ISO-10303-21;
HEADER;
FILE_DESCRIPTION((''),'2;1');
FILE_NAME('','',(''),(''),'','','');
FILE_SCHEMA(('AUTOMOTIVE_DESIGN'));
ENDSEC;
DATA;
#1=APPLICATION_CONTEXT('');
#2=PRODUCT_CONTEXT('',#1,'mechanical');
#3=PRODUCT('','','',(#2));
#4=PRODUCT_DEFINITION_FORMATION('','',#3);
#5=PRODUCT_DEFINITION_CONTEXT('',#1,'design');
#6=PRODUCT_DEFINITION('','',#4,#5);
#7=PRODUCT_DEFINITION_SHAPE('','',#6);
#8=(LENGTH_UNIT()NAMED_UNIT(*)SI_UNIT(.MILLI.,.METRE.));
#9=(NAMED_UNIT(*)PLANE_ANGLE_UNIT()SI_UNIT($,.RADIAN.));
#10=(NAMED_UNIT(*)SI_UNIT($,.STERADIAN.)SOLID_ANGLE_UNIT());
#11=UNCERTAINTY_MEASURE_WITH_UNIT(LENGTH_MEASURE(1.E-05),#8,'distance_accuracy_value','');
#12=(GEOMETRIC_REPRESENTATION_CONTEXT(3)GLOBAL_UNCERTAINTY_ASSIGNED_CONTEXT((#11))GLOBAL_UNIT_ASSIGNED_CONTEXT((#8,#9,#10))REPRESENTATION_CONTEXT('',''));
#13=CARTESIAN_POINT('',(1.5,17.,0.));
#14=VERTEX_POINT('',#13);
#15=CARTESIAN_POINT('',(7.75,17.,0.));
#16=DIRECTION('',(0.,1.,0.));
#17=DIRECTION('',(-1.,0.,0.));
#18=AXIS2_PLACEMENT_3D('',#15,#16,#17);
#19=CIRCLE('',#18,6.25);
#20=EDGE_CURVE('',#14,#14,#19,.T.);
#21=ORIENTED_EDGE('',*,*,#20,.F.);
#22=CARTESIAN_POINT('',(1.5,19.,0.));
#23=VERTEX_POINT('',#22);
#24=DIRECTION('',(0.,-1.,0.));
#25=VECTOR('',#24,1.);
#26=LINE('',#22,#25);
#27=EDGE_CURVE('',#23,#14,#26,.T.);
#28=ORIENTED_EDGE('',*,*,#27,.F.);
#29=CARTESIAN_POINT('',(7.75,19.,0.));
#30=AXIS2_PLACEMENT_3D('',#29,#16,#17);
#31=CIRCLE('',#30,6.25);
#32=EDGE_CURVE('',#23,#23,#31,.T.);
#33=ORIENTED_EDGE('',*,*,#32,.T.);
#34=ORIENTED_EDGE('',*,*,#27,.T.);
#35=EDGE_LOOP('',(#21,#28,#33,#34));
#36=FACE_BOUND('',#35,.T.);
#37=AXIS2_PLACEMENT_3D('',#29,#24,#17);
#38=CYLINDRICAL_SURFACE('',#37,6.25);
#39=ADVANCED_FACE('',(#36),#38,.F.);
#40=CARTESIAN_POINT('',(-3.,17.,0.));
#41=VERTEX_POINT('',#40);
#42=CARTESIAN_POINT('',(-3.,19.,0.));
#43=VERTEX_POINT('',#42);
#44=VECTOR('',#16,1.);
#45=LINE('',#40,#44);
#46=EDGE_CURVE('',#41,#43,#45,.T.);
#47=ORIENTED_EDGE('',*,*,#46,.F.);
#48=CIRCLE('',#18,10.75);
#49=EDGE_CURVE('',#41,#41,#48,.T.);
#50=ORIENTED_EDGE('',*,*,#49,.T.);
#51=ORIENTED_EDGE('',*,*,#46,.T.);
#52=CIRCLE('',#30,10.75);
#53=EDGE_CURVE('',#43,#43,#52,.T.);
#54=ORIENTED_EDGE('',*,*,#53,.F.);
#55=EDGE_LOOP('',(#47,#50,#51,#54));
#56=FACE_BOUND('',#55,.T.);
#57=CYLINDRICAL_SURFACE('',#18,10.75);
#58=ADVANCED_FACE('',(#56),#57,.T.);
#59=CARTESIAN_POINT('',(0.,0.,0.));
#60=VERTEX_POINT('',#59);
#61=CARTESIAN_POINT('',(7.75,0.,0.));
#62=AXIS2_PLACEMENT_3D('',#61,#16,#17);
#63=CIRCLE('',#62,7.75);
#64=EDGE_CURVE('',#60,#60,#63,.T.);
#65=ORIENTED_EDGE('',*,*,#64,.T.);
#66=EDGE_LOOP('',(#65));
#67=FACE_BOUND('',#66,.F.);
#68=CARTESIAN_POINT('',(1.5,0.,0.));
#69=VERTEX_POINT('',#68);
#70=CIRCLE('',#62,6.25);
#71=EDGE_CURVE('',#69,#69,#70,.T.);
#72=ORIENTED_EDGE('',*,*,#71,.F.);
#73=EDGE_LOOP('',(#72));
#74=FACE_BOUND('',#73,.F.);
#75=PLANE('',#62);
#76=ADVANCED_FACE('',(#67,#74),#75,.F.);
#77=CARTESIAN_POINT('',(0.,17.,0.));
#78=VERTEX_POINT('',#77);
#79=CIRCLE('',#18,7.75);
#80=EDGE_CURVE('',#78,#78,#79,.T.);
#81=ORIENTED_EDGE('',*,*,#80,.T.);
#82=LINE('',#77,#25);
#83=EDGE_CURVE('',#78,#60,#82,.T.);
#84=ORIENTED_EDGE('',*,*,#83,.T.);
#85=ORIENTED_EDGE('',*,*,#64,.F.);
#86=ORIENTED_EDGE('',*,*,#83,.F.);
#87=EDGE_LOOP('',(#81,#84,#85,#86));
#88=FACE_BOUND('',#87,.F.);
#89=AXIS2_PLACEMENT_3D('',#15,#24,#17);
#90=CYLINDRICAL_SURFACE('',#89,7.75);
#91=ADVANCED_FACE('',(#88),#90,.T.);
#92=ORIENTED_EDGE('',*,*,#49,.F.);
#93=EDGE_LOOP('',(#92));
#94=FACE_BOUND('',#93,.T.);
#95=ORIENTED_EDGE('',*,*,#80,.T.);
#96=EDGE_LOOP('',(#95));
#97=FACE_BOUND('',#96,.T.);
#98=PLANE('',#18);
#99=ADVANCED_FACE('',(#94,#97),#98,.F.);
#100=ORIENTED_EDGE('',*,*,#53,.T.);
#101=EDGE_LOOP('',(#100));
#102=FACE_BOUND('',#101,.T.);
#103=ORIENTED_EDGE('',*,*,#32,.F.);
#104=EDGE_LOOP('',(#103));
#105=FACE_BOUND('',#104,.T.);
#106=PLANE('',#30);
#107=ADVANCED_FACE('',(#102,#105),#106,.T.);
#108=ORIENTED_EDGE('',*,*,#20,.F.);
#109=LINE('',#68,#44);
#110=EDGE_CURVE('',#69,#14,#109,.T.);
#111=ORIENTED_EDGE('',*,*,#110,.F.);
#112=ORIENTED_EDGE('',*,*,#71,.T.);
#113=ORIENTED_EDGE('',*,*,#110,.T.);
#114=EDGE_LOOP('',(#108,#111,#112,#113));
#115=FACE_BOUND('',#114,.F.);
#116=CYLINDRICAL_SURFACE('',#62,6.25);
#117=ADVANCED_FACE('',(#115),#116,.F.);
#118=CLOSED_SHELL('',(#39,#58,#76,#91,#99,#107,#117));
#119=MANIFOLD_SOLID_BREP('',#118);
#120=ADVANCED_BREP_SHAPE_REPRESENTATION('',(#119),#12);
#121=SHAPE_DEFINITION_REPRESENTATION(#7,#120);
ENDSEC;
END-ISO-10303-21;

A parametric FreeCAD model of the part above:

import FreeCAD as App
import Part
import Sketcher
from FreeCAD import Vector


def add_polygon(sketch, points):
    """Adds a closed chain of lines whose ends are joined by coincident constraints."""
    first, n = sketch.GeometryCount, len(points)
    for a, b in zip(points, points[1:] + points[:1]):
        sketch.addGeometry(Part.LineSegment(App.Vector(*a, 0), App.Vector(*b, 0)), False)
    for i in range(n):
        sketch.addConstraint(Sketcher.Constraint("Coincident", first + i, 2, first + (i + 1) % n, 1))

doc = App.newDocument("Part")
body = doc.addObject("PartDesign::Body", "Body")

sketch1 = body.newObject("Sketcher::SketchObject", "Sketch")
sketch1.AttachmentSupport = (doc.getObject("XY_Plane"), [""])
sketch1.MapMode = "FlatFace"
add_polygon(sketch1, [(0, 17), (0, 0), (1.5, 0), (1.5, 19), (-3, 19), (-3, 17)])
sketch1.addGeometry(Part.LineSegment(Vector(7.75, 0, 0), Vector(7.75, 19, 0)), True)
sketch1.addConstraint([
    Sketcher.Constraint("Vertical", 0),
    Sketcher.Constraint("Horizontal", 1),
    Sketcher.Constraint("Vertical", 2),
    Sketcher.Constraint("Horizontal", 3),
    Sketcher.Constraint("Vertical", 4),
    Sketcher.Constraint("Horizontal", 5),
    Sketcher.Constraint("Vertical", 6),
    Sketcher.Constraint("Coincident", 0, 2, -1, 1),
    Sketcher.Constraint("PointOnObject", 6, 1, -1),
    Sketcher.Constraint("Horizontal", 3, 2, 6, 2),
    Sketcher.Constraint("DistanceX", 5, 1, 5, 2, 3.0),
    Sketcher.Constraint("DistanceY", 0, 2, 0, 1, 17.0),
    Sketcher.Constraint("DistanceY", 4, 2, 4, 1, 2.0),
    Sketcher.Constraint("DistanceX", 1, 1, 1, 2, 1.5),
    Sketcher.Constraint("DistanceX", -1, 1, 6, 1, 7.75),
])
revolution = body.newObject("PartDesign::Revolution", "Revolution")
revolution.Profile = sketch1
revolution.ReferenceAxis = (sketch1, ["Axis0"])
revolution.Angle = 360

doc.recompute()
